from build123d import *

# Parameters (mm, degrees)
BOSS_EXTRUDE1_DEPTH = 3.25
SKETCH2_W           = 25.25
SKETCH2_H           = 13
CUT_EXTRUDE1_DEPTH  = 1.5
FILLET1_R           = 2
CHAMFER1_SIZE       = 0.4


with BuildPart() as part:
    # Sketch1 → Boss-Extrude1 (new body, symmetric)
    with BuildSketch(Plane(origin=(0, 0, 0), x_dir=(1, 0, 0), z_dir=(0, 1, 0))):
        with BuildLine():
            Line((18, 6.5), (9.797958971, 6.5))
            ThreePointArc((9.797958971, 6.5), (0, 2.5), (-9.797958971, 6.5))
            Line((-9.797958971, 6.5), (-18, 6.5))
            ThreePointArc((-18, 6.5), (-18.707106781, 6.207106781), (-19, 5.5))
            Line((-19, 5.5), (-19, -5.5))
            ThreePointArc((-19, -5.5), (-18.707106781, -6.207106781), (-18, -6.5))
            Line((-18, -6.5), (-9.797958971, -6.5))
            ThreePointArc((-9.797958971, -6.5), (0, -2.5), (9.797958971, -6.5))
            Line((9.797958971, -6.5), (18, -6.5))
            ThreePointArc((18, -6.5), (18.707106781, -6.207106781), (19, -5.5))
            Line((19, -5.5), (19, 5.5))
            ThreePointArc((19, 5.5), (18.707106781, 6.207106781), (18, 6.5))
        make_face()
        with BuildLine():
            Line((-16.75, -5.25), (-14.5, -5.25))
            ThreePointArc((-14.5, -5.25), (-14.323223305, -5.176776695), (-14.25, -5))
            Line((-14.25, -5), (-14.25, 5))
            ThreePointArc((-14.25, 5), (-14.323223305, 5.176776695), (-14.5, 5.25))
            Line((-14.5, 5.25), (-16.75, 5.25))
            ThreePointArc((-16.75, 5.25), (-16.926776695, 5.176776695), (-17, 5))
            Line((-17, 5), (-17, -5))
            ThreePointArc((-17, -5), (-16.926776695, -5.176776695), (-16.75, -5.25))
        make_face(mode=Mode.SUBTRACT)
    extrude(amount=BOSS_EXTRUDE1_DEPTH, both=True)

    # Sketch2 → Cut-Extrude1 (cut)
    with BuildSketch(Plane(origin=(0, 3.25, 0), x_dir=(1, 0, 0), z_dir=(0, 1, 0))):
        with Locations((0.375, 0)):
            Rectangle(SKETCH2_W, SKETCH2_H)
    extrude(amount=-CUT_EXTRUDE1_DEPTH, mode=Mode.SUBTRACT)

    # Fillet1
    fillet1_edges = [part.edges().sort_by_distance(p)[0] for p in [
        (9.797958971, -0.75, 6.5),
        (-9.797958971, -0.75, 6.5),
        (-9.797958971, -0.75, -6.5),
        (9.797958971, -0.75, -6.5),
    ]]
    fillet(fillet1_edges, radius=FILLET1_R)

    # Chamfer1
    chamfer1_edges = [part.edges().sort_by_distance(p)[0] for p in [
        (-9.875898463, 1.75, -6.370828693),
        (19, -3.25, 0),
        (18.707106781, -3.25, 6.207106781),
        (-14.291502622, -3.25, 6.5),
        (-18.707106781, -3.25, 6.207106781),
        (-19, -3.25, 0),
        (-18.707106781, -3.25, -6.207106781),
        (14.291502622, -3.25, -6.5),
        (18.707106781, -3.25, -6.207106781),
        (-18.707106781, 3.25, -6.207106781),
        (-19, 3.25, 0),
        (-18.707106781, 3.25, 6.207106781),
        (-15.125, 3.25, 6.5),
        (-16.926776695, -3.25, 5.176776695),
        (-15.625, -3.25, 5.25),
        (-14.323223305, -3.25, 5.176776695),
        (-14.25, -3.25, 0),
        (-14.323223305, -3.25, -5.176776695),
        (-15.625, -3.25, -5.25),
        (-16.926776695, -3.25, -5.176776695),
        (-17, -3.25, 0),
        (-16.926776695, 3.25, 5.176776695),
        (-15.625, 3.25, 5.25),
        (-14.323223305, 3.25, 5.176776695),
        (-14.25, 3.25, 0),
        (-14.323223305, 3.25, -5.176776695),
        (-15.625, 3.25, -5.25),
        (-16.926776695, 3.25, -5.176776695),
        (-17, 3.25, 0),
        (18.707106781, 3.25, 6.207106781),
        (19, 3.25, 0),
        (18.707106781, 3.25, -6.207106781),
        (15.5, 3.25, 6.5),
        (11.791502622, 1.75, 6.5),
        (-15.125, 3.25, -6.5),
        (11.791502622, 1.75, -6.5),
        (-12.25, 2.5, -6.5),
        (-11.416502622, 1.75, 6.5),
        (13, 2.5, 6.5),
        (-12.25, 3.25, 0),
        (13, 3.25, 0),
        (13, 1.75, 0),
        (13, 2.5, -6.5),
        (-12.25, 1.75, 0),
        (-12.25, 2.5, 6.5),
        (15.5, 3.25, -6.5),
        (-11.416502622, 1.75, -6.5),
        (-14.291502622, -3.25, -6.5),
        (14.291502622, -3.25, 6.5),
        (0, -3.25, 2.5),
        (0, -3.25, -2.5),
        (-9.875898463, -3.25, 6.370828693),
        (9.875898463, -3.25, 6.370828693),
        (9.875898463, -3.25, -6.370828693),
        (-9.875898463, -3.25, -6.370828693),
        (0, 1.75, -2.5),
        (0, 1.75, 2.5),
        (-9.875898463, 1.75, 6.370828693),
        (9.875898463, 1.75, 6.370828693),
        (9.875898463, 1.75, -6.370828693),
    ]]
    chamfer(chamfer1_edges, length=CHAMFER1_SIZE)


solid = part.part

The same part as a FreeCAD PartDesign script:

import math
import FreeCAD as App
import Part
import Sketcher
from FreeCAD import Vector


def edges_at(feature, points):
    """Names of the edges that pass closest to the given points."""
    edges = feature.Shape.Edges
    near = lambda p: min(range(len(edges)), key=lambda i: edges[i].distToShape(Part.Vertex(*p))[0])
    return sorted({f"Edge{near(p) + 1}" for p in points})

doc = App.newDocument("Part")
body = doc.addObject("PartDesign::Body", "Body")

# Sketch on XZ plane
sketch1 = body.newObject("Sketcher::SketchObject", "Sketch")
sketch1.AttachmentSupport = (doc.getObject("XZ_Plane"), [""])
sketch1.MapMode = "FlatFace"
sketch1.addGeometry(Part.LineSegment(Vector(18, -6.5, 0), Vector(9.797959, -6.5, 0)), False)
sketch1.addGeometry(Part.ArcOfCircle(Part.Circle(Vector(0, -16.5, 0), Vector(0, 0, 1), 14), math.radians(45.584691), math.radians(134.415309)), False)
sketch1.addGeometry(Part.LineSegment(Vector(-9.797959, -6.5, 0), Vector(-18, -6.5, 0)), False)
sketch1.addGeometry(Part.ArcOfCircle(Part.Circle(Vector(-18, -5.5, 0), Vector(0, 0, 1), 1), math.radians(-180), math.radians(-90)), False)
sketch1.addGeometry(Part.LineSegment(Vector(-19, -5.5, 0), Vector(-19, 5.5, 0)), False)
sketch1.addGeometry(Part.ArcOfCircle(Part.Circle(Vector(-18, 5.5, 0), Vector(0, 0, 1), 1), math.radians(90), math.radians(180)), False)
sketch1.addGeometry(Part.LineSegment(Vector(-18, 6.5, 0), Vector(-9.797959, 6.5, 0)), False)
sketch1.addGeometry(Part.ArcOfCircle(Part.Circle(Vector(0, 16.5, 0), Vector(0, 0, 1), 14), math.radians(-134.415309), math.radians(-45.584691)), False)
sketch1.addGeometry(Part.LineSegment(Vector(9.797959, 6.5, 0), Vector(18, 6.5, 0)), False)
sketch1.addGeometry(Part.ArcOfCircle(Part.Circle(Vector(18, 5.5, 0), Vector(0, 0, 1), 1), math.radians(0), math.radians(90)), False)
sketch1.addGeometry(Part.LineSegment(Vector(19, 5.5, 0), Vector(19, -5.5, 0)), False)
sketch1.addGeometry(Part.ArcOfCircle(Part.Circle(Vector(18, -5.5, 0), Vector(0, 0, 1), 1), math.radians(-90), math.radians(0)), False)
sketch1.addGeometry(Part.LineSegment(Vector(-14.5, 5.25, 0), Vector(-16.75, 5.25, 0)), False)
sketch1.addGeometry(Part.ArcOfCircle(Part.Circle(Vector(-16.75, 5, 0), Vector(0, 0, 1), 0.25), math.radians(90), math.radians(180)), False)
sketch1.addGeometry(Part.LineSegment(Vector(-17, 5, 0), Vector(-17, -5, 0)), False)
sketch1.addGeometry(Part.ArcOfCircle(Part.Circle(Vector(-16.75, -5, 0), Vector(0, 0, 1), 0.25), math.radians(-180), math.radians(-90)), False)
sketch1.addGeometry(Part.LineSegment(Vector(-16.75, -5.25, 0), Vector(-14.5, -5.25, 0)), False)
sketch1.addGeometry(Part.ArcOfCircle(Part.Circle(Vector(-14.5, -5, 0), Vector(0, 0, 1), 0.25), math.radians(-90), math.radians(0)), False)
sketch1.addGeometry(Part.LineSegment(Vector(-14.25, -5, 0), Vector(-14.25, 5, 0)), False)
sketch1.addGeometry(Part.ArcOfCircle(Part.Circle(Vector(-14.5, 5, 0), Vector(0, 0, 1), 0.25), math.radians(0), math.radians(90)), False)
sketch1.addConstraint(Sketcher.Constraint("Coincident", 0, 2, 1, 1))
sketch1.addConstraint(Sketcher.Constraint("Coincident", 1, 2, 2, 1))
sketch1.addConstraint(Sketcher.Constraint("Tangent", 2, 2, 3, 2))
sketch1.addConstraint(Sketcher.Constraint("Tangent", 3, 1, 4, 1))
sketch1.addConstraint(Sketcher.Constraint("Tangent", 4, 2, 5, 2))
sketch1.addConstraint(Sketcher.Constraint("Tangent", 5, 1, 6, 1))
sketch1.addConstraint(Sketcher.Constraint("Coincident", 6, 2, 7, 1))
sketch1.addConstraint(Sketcher.Constraint("Coincident", 7, 2, 8, 1))
sketch1.addConstraint(Sketcher.Constraint("Tangent", 8, 2, 9, 2))
sketch1.addConstraint(Sketcher.Constraint("Tangent", 9, 1, 10, 1))
sketch1.addConstraint(Sketcher.Constraint("Tangent", 10, 2, 11, 2))
sketch1.addConstraint(Sketcher.Constraint("Tangent", 11, 1, 0, 1))
sketch1.addConstraint(Sketcher.Constraint("Tangent", 12, 2, 13, 1))
sketch1.addConstraint(Sketcher.Constraint("Tangent", 13, 2, 14, 1))
sketch1.addConstraint(Sketcher.Constraint("Tangent", 14, 2, 15, 1))
sketch1.addConstraint(Sketcher.Constraint("Tangent", 15, 2, 16, 1))
sketch1.addConstraint(Sketcher.Constraint("Tangent", 16, 2, 17, 1))
sketch1.addConstraint(Sketcher.Constraint("Tangent", 17, 2, 18, 1))
sketch1.addConstraint(Sketcher.Constraint("Tangent", 18, 2, 19, 1))
sketch1.addConstraint(Sketcher.Constraint("Tangent", 19, 2, 12, 1))
sketch1.addConstraint(Sketcher.Constraint("Horizontal", 0))
sketch1.addConstraint(Sketcher.Constraint("Horizontal", 2))
sketch1.addConstraint(Sketcher.Constraint("Vertical", 4))
sketch1.addConstraint(Sketcher.Constraint("Horizontal", 6))
sketch1.addConstraint(Sketcher.Constraint("Horizontal", 8))
sketch1.addConstraint(Sketcher.Constraint("Vertical", 10))
sketch1.addConstraint(Sketcher.Constraint("Horizontal", 12))
sketch1.addConstraint(Sketcher.Constraint("Vertical", 14))
sketch1.addConstraint(Sketcher.Constraint("Horizontal", 16))
sketch1.addConstraint(Sketcher.Constraint("Vertical", 18))
sketch1.addConstraint(Sketcher.Constraint("Equal", 3, 5))
sketch1.addConstraint(Sketcher.Constraint("Equal", 1, 7))
sketch1.addConstraint(Sketcher.Constraint("Equal", 5, 9))
sketch1.addConstraint(Sketcher.Constraint("Equal", 9, 11))
sketch1.addConstraint(Sketcher.Constraint("Equal", 13, 15))
sketch1.addConstraint(Sketcher.Constraint("Equal", 15, 17))
sketch1.addConstraint(Sketcher.Constraint("Equal", 17, 19))
sketch1.addConstraint(Sketcher.Constraint("Symmetric", 1, 3, 7, 3, -1, 1))
sketch1.addConstraint(Sketcher.Constraint("Symmetric", 3, 3, 9, 3, -1, 1))
sketch1.addConstraint(Sketcher.Constraint("Symmetric", 0, 2, 1, 2, -2))
sketch1.addConstraint(Sketcher.Constraint("Horizontal", 5, 3, 9, 3))
sketch1.addConstraint(Sketcher.Constraint("Radius", 1, 14.0))
sketch1.addConstraint(Sketcher.Constraint("Radius", 3, 1.0))
sketch1.addConstraint(Sketcher.Constraint("DistanceY", 4, 1, 4, 2, 11.0))
sketch1.addConstraint(Sketcher.Constraint("DistanceY", 14, 2, 14, 1, 10.0))
sketch1.addConstraint(Sketcher.Constraint("Radius", 13, 0.25))
sketch1.addConstraint(Sketcher.Constraint("DistanceX", 3, 3, -1, 1, 18.0))
sketch1.addConstraint(Sketcher.Constraint("DistanceY", -1, 1, 13, 3, 5.0))
sketch1.addConstraint(Sketcher.Constraint("DistanceX", 13, 2, -1, 1, 17.0))
sketch1.addConstraint(Sketcher.Constraint("DistanceY", 1, 3, 3, 3, 11.0))
sketch1.addConstraint(Sketcher.Constraint("DistanceX", 12, 2, 12, 1, 2.25))
pad1 = body.newObject("PartDesign::Pad", "Pad")
pad1.Profile = sketch1
pad1.Length = 6.5
pad1.Midplane = True

# Sketch on XZ plane
sketch2 = body.newObject("Sketcher::SketchObject", "Sketch001")
sketch2.AttachmentSupport = (doc.getObject("XZ_Plane"), [""])
sketch2.MapMode = "FlatFace"
sketch2.AttachmentOffset = App.Placement(Vector(0, 0, -3.25), App.Rotation())
sketch2.addGeometry(Part.LineSegment(Vector(-12.25, -6.5, 0), Vector(-12.25, 6.5, 0)), False)
sketch2.addGeometry(Part.LineSegment(Vector(-12.25, 6.5, 0), Vector(13, 6.5, 0)), False)
sketch2.addGeometry(Part.LineSegment(Vector(13, 6.5, 0), Vector(13, -6.5, 0)), False)
sketch2.addGeometry(Part.LineSegment(Vector(13, -6.5, 0), Vector(-12.25, -6.5, 0)), False)
sketch2.addConstraint(Sketcher.Constraint("Coincident", 0, 2, 1, 1))
sketch2.addConstraint(Sketcher.Constraint("Coincident", 1, 2, 2, 1))
sketch2.addConstraint(Sketcher.Constraint("Coincident", 2, 2, 3, 1))
sketch2.addConstraint(Sketcher.Constraint("Coincident", 3, 2, 0, 1))
sketch2.addConstraint(Sketcher.Constraint("Vertical", 0))
sketch2.addConstraint(Sketcher.Constraint("Horizontal", 1))
sketch2.addConstraint(Sketcher.Constraint("Vertical", 2))
sketch2.addConstraint(Sketcher.Constraint("Horizontal", 3))
sketch2.addConstraint(Sketcher.Constraint("DistanceY", 0, 1, 0, 2, 13.0))
sketch2.addConstraint(Sketcher.Constraint("DistanceX", -1, 1, 1, 2, 13.0))
sketch2.addConstraint(Sketcher.Constraint("DistanceX", 1, 1, 1, 2, 25.25))
sketch2.addConstraint(Sketcher.Constraint("DistanceY", -1, 1, 0, 2, 6.5))
pocket1 = body.newObject("PartDesign::Pocket", "Pocket")
pocket1.Profile = sketch2
pocket1.Length = 1.5
pocket1.Reversed = True
doc.recompute()

fillet = body.newObject("PartDesign::Fillet", "Fillet")
fillet.Base = (pocket1, edges_at(pocket1, [
    (9.798, -0.75, 6.5),
    (-9.798, -0.75, 6.5),
    (-9.798, -0.75, -6.5),
    (9.798, -0.75, -6.5),
]))
fillet.Radius = 2
doc.recompute()

chamfer = body.newObject("PartDesign::Chamfer", "Chamfer")
chamfer.Base = (fillet, ["Edge1"])
chamfer.UseAllEdges = True
chamfer.Size = 0.4

doc.recompute()
